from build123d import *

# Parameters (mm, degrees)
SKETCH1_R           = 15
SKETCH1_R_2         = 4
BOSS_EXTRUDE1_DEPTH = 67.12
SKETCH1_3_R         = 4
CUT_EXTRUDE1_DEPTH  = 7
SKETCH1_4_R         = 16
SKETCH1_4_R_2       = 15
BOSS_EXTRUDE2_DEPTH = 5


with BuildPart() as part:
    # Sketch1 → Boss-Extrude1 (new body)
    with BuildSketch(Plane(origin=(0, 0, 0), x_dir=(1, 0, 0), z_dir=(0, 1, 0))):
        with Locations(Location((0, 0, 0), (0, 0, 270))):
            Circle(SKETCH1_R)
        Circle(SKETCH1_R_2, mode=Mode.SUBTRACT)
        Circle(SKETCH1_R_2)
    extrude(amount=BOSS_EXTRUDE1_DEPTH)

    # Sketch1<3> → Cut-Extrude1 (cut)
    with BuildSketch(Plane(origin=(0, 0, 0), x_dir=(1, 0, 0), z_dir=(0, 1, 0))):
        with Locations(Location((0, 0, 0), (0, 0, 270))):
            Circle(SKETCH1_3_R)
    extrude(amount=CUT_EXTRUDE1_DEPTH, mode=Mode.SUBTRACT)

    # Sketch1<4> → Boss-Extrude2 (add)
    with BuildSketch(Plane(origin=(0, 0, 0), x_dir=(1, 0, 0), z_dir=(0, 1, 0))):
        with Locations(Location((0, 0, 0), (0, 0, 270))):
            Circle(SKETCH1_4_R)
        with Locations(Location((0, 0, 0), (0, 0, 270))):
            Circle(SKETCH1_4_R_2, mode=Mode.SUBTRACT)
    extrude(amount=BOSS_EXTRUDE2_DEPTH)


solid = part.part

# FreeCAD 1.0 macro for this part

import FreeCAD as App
import Part
import Sketcher
Q = App.Units.Quantity

doc = App.newDocument("Part")
body = doc.addObject("PartDesign::Body", "Body")

# Sketch on XZ plane
sketch1 = body.newObject("Sketcher::SketchObject", "Sketch")
sketch1.AttachmentSupport = (doc.getObject("XZ_Plane"), [""])
sketch1.MapMode = "FlatFace"
sketch1.addGeometry(Part.Circle(App.Vector(0, 0, 0), App.Vector(0, 0, 1), 15), False)
sketch1.addConstraint([
    Sketcher.Constraint("Coincident", 0, 3, -1, 1),
    Sketcher.Constraint("Diameter", 0, Q("30 mm")),
])
pad1 = body.newObject("PartDesign::Pad", "Pad")
pad1.Profile = sketch1
pad1.Length = 67.12
pad1.Reversed = True

# Sketch on XZ plane
sketch2 = body.newObject("Sketcher::SketchObject", "Sketch001")
sketch2.AttachmentSupport = (doc.getObject("XZ_Plane"), [""])
sketch2.MapMode = "FlatFace"
sketch2.addGeometry(Part.Circle(App.Vector(0, 0, 0), App.Vector(0, 0, 1), 4), False)
sketch2.addConstraint([
    Sketcher.Constraint("Coincident", 0, 3, -1, 1),
    Sketcher.Constraint("Diameter", 0, Q("8 mm")),
])
pocket1 = body.newObject("PartDesign::Pocket", "Pocket")
pocket1.Profile = sketch2
pocket1.Length = 7

# Sketch on XZ plane
sketch3 = body.newObject("Sketcher::SketchObject", "Sketch002")
sketch3.AttachmentSupport = (doc.getObject("XZ_Plane"), [""])
sketch3.MapMode = "FlatFace"
sketch3.addGeometry([
    Part.Circle(App.Vector(0, 0, 0), App.Vector(0, 0, 1), 16),
    Part.Circle(App.Vector(0, 0, 0), App.Vector(0, 0, 1), 15),
], False)
sketch3.addConstraint([
    Sketcher.Constraint("Coincident", 0, 3, -1, 1),
    Sketcher.Constraint("Coincident", 1, 3, -1, 1),
    Sketcher.Constraint("Diameter", 0, Q("32 mm")),
    Sketcher.Constraint("Diameter", 1, Q("30 mm")),
])
pad2 = body.newObject("PartDesign::Pad", "Pad001")
pad2.Profile = sketch3
pad2.Length = 5
pad2.Reversed = True

doc.recompute()
